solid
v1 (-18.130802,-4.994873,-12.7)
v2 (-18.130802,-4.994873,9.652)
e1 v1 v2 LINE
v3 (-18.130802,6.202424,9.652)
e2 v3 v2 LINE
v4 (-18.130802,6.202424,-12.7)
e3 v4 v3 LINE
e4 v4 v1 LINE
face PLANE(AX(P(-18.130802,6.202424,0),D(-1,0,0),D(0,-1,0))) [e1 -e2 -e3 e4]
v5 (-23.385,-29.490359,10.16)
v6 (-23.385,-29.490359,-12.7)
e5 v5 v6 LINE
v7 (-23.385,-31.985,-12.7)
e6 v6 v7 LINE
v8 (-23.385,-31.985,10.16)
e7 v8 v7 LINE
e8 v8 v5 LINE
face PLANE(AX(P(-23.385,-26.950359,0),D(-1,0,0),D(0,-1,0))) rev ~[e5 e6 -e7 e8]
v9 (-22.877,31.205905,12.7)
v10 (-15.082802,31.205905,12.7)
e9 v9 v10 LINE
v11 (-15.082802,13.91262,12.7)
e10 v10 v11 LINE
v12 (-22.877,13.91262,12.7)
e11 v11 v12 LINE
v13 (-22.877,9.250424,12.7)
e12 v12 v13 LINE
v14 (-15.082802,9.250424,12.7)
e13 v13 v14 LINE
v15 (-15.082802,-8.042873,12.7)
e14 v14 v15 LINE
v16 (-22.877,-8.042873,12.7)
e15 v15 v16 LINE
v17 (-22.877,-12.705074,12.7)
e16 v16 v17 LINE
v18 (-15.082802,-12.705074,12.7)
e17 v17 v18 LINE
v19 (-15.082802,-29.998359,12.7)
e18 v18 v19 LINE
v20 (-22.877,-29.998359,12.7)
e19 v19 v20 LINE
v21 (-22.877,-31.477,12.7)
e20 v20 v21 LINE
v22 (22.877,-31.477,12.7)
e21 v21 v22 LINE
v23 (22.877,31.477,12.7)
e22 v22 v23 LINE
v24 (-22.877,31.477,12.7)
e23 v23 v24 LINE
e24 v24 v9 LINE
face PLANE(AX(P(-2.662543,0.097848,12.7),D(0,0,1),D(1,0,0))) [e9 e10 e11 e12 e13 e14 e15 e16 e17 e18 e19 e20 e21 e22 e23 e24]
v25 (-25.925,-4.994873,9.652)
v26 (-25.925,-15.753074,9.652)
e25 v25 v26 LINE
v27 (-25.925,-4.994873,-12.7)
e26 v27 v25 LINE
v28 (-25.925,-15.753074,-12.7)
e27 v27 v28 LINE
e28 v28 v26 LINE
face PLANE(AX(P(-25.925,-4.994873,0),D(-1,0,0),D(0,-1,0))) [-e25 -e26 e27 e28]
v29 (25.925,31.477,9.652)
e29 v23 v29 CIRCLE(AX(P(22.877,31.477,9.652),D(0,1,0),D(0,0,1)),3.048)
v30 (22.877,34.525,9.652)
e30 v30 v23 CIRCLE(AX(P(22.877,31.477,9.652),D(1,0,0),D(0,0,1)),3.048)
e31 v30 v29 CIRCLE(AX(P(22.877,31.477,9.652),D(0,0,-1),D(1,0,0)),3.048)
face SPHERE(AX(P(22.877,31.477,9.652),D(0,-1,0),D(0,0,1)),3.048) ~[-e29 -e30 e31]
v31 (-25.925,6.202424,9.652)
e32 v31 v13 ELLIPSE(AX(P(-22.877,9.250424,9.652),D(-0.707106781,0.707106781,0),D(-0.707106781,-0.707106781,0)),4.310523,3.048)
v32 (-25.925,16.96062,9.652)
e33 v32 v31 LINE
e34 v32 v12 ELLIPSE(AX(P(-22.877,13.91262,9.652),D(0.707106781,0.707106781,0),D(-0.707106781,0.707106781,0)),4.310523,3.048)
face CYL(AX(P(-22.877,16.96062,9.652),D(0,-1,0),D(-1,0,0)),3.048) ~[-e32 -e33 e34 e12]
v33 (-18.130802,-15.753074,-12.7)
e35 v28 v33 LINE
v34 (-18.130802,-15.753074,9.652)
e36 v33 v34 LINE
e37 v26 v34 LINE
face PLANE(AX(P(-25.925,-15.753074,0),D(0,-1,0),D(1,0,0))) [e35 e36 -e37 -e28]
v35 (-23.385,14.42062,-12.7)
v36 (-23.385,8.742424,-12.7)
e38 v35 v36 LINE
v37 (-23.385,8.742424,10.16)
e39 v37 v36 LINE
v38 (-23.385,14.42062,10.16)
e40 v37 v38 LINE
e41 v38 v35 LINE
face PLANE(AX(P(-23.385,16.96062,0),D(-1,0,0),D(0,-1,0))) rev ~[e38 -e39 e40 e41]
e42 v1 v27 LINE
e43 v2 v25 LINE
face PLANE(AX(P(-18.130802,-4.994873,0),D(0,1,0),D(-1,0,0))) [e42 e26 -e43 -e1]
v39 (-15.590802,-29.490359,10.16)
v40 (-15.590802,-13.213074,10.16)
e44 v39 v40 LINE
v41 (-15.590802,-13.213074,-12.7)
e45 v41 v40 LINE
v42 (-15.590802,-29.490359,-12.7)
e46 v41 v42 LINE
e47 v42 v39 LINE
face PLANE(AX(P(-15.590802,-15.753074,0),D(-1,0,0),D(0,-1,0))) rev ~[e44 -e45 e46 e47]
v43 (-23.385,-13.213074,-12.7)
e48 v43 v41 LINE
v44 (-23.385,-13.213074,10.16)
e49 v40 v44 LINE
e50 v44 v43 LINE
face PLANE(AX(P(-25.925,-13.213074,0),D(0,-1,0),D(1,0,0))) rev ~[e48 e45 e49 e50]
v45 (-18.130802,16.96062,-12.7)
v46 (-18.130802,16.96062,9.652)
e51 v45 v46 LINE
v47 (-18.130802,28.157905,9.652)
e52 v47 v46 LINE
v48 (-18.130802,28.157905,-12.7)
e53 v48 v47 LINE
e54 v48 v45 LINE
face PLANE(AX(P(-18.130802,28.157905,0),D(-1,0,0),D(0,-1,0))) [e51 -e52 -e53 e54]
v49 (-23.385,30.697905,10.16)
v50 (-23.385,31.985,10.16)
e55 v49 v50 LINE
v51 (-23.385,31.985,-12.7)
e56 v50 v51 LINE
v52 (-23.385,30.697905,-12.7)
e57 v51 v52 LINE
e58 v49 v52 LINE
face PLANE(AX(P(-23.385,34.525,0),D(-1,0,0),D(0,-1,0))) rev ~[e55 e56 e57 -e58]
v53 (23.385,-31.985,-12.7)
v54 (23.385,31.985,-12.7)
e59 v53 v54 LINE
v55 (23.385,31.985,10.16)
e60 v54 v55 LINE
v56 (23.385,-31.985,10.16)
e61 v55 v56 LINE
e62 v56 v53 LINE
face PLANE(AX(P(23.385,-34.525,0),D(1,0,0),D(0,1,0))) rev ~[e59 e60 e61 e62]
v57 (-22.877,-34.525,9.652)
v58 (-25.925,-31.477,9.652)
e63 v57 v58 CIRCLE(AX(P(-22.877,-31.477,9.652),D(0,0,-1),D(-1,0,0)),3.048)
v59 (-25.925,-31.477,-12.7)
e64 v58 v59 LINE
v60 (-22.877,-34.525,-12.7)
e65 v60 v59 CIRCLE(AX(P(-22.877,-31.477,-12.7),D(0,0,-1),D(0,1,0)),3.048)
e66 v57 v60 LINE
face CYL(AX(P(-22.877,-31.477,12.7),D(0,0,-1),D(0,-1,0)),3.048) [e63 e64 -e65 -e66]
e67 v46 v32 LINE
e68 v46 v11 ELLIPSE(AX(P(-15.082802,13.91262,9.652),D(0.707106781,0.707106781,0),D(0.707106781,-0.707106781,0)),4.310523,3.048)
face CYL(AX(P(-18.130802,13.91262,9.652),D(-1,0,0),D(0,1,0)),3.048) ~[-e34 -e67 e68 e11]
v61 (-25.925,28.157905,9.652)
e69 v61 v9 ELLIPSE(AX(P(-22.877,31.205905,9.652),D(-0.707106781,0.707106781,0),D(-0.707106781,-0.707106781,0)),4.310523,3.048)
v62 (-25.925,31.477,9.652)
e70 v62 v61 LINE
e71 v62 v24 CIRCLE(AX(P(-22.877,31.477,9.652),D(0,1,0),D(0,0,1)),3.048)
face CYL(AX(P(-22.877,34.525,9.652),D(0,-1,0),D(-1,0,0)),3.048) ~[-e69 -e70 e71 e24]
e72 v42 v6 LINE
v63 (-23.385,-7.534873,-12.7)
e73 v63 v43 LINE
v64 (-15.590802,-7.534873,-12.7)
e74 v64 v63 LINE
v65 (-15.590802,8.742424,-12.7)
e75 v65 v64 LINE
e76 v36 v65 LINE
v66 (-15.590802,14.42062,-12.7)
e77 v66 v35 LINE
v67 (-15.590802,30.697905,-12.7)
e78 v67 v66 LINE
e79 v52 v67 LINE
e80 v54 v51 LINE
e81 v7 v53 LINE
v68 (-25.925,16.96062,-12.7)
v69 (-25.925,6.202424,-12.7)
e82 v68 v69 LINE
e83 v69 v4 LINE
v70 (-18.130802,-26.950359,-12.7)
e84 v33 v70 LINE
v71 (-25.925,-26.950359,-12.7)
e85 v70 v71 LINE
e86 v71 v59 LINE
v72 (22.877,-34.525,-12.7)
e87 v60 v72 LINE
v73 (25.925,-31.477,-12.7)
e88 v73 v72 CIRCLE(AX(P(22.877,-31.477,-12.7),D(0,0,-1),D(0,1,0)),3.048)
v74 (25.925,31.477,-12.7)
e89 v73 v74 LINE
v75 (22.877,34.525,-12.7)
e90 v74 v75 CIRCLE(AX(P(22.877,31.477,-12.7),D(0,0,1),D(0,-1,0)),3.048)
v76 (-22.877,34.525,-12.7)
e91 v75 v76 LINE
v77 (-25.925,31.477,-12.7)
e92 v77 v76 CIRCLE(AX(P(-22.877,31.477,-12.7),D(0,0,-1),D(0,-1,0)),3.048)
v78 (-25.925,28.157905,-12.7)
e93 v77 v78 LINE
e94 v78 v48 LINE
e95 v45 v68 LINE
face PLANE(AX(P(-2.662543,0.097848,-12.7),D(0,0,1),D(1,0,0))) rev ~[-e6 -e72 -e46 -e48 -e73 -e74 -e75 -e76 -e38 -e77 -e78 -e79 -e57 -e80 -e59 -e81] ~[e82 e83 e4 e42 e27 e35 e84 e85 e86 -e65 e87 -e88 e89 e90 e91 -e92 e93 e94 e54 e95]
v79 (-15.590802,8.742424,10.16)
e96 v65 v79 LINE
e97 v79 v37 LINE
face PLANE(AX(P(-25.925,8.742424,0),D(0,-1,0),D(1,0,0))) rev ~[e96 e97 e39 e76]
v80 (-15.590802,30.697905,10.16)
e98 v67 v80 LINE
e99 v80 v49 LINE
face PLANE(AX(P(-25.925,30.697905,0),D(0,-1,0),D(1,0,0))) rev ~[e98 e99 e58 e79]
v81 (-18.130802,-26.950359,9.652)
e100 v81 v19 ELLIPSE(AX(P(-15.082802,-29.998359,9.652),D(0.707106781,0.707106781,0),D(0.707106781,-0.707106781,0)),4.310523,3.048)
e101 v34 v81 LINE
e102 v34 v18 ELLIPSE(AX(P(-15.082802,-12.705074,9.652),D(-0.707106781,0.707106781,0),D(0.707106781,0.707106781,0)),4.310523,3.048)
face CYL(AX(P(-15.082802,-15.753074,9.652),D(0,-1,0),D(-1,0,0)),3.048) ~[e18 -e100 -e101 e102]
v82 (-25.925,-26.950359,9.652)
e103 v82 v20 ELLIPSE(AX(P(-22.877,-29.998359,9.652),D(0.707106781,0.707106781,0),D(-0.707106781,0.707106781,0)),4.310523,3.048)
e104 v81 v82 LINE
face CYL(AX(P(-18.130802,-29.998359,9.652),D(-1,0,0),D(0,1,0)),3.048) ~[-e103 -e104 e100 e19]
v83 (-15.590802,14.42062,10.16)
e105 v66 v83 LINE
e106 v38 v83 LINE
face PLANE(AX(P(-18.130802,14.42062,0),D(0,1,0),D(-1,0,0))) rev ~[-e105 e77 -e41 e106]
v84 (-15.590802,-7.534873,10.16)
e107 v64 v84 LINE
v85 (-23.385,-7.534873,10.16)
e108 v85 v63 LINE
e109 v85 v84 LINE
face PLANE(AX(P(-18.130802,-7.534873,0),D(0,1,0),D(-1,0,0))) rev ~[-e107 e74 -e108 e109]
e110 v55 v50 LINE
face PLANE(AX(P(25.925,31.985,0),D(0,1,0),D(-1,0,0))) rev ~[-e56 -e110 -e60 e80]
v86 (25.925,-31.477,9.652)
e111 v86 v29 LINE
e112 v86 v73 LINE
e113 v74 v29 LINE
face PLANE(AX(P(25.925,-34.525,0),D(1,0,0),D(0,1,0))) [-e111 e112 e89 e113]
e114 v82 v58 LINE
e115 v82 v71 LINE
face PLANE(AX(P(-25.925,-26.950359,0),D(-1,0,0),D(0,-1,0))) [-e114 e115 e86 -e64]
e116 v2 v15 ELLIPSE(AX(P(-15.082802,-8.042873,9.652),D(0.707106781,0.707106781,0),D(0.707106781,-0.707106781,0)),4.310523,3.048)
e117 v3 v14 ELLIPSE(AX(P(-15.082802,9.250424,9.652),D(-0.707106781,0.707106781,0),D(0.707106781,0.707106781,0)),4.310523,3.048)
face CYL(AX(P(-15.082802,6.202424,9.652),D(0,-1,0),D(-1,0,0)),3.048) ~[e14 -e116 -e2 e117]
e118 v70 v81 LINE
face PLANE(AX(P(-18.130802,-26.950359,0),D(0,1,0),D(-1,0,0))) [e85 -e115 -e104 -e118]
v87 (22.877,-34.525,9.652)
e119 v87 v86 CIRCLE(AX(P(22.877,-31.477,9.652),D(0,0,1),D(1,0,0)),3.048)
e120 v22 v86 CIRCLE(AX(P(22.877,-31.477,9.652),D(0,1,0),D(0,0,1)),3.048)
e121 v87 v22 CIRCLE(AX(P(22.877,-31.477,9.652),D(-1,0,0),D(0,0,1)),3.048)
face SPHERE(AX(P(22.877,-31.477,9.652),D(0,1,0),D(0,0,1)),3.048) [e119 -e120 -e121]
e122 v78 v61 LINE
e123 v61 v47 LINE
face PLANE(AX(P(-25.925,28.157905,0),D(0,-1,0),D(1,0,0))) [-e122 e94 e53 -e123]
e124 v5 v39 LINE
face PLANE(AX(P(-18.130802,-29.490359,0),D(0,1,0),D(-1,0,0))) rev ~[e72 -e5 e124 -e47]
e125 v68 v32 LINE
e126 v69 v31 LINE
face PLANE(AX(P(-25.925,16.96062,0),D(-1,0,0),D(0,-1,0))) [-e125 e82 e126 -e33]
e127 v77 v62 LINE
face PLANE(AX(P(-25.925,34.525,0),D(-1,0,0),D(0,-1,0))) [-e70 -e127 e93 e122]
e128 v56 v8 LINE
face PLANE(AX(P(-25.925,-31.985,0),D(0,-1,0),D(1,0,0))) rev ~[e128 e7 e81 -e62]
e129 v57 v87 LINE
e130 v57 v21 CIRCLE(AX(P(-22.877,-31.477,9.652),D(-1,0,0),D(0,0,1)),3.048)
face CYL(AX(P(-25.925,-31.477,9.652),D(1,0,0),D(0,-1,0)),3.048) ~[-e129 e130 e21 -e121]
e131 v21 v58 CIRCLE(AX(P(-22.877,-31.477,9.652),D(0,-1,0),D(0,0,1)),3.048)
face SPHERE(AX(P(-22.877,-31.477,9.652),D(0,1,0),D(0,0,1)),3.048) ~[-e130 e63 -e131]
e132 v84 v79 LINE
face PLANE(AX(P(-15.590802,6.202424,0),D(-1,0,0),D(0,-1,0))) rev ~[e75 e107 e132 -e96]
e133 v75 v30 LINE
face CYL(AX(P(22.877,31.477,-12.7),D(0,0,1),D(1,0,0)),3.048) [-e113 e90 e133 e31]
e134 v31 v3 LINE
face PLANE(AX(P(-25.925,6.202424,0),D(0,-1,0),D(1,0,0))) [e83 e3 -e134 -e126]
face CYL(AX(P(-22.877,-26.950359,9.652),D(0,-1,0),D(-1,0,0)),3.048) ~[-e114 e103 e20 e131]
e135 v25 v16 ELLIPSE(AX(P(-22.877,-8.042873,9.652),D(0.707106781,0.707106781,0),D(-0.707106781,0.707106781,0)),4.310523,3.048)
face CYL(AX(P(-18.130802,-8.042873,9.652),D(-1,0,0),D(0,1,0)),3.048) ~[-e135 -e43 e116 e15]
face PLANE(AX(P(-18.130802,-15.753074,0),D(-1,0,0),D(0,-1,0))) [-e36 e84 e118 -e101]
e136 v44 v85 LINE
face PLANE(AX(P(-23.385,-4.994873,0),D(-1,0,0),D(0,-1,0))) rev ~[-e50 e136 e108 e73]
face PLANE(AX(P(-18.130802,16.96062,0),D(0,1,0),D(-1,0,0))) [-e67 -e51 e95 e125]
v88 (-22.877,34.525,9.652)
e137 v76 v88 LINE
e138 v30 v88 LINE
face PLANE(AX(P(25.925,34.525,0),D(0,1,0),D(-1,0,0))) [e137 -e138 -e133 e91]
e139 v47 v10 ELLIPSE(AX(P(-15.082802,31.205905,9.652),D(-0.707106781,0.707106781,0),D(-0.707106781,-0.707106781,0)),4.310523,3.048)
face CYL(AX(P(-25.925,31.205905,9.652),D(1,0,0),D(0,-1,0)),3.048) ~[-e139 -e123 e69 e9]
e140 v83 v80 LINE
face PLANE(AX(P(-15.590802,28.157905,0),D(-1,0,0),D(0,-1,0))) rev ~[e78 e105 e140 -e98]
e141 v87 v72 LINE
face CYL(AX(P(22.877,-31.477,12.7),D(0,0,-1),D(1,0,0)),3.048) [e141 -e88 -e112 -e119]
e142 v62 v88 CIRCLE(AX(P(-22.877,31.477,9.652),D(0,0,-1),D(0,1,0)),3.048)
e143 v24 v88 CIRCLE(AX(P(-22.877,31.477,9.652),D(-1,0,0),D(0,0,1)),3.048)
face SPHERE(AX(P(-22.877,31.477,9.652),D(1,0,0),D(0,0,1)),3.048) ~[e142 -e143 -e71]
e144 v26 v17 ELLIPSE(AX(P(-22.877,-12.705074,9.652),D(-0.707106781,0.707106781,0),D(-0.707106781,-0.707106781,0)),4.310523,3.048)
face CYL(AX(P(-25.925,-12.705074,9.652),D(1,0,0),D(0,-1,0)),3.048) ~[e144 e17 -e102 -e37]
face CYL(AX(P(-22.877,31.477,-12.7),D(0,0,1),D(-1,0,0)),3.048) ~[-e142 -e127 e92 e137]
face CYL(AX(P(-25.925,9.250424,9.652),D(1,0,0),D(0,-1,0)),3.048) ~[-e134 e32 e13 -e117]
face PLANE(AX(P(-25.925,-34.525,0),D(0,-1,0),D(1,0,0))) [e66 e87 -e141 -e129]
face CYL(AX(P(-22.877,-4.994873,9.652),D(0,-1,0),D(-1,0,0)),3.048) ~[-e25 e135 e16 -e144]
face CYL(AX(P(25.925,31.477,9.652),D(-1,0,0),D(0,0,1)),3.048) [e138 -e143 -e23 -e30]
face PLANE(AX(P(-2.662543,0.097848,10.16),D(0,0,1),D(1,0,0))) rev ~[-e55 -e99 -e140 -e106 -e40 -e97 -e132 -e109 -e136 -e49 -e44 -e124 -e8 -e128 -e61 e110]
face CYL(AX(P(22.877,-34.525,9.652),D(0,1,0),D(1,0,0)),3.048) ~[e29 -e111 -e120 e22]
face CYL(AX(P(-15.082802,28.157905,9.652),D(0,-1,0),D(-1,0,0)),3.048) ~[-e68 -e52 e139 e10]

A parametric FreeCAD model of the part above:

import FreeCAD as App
import Part
import Sketcher
Q = App.Units.Quantity


def edges_at(feature, points):
    """Names of the edges that pass closest to the given points."""
    edges = feature.Shape.Edges
    near = lambda p: min(range(len(edges)), key=lambda i: edges[i].distToShape(Part.Vertex(*p))[0])
    return sorted({f"Edge{near(p) + 1}" for p in points})


def faces_at(feature, points):
    """Names of the faces that lie closest to the given points."""
    faces = feature.Shape.Faces
    near = lambda p: min(range(len(faces)), key=lambda i: faces[i].distToShape(Part.Vertex(*p))[0])
    return sorted({f"Face{near(p) + 1}" for p in points})


def add_polygon(sketch, points):
    """Adds a closed chain of lines whose ends are joined by coincident constraints."""
    first, n = sketch.GeometryCount, len(points)
    for a, b in zip(points, points[1:] + points[:1]):
        sketch.addGeometry(Part.LineSegment(App.Vector(*a, 0), App.Vector(*b, 0)), False)
    for i in range(n):
        sketch.addConstraint(Sketcher.Constraint("Coincident", first + i, 2, first + (i + 1) % n, 1))

doc = App.newDocument("Part")
body = doc.addObject("PartDesign::Body", "Body")

sketch1 = doc.addObject("Sketcher::SketchObject", "Sketch")
body.addObject(sketch1)
sketch1.AttachmentSupport = (doc.XY_Plane, [""])
sketch1.MapMode = "FlatFace"
add_polygon(sketch1, [(26, -35), (26, 35), (-26, 35), (-26, 28), (-18, 28), (-18, 17), (-26, 17), (-26, 6), (-18, 6), (-18, -5), (-26, -5), (-26, -16), (-18, -16), (-18, -27), (-26, -27), (-26, -35)])
sketch1.addConstraint([
    Sketcher.Constraint("Vertical", 0),
    Sketcher.Constraint("Horizontal", 1),
    Sketcher.Constraint("Vertical", 2),
    Sketcher.Constraint("Horizontal", 3),
    Sketcher.Constraint("Vertical", 4),
    Sketcher.Constraint("Horizontal", 5),
    Sketcher.Constraint("Vertical", 6),
    Sketcher.Constraint("Horizontal", 7),
    Sketcher.Constraint("Vertical", 8),
    Sketcher.Constraint("Horizontal", 9),
    Sketcher.Constraint("Vertical", 10),
    Sketcher.Constraint("Horizontal", 11),
    Sketcher.Constraint("Vertical", 12),
    Sketcher.Constraint("Horizontal", 13),
    Sketcher.Constraint("Vertical", 14),
    Sketcher.Constraint("Horizontal", 15),
    Sketcher.Constraint("Symmetric", 0, 2, 14, 2, -1, 1),
    Sketcher.Constraint("Vertical", 2, 2, 5, 2),
    Sketcher.Constraint("Vertical", 4, 2, 7, 2),
    Sketcher.Constraint("Vertical", 6, 2, 9, 2),
    Sketcher.Constraint("Vertical", 8, 2, 11, 2),
    Sketcher.Constraint("Vertical", 10, 2, 13, 2),
    Sketcher.Constraint("Equal", 4, 12),
    Sketcher.Constraint("DistanceX", 1, 2, 1, 1, 51.85),
    Sketcher.Constraint("DistanceX", 3, 1, 3, 2, 7.794198),
    Sketcher.Constraint("DistanceY", 0, 1, 0, 2, 69.049999),
    Sketcher.Constraint("DistanceY", 10, 2, 10, 1, 10.758201),
    Sketcher.Constraint("DistanceY", 14, 2, 14, 1, 7.574641),
    Sketcher.Constraint("DistanceY", 2, 2, 2, 1, 6.367095),
    Sketcher.Constraint("DistanceY", 4, 2, 4, 1, 11.197285),
    Sketcher.Constraint("DistanceY", 6, 2, 6, 1, 10.758195),
])
pad1 = doc.addObject("PartDesign::Pad", "Pad")
body.addObject(pad1)
pad1.Profile = sketch1
pad1.Length = Q("1 in")
pad1.Midplane = True
doc.recompute()

thickness = doc.addObject("PartDesign::Thickness", "Thickness")
body.addObject(thickness)
thickness.Base = (pad1, faces_at(pad1, [(0, 0, -12.7)]))
thickness.Value = Q("0.1 in")
thickness.Reversed = True
thickness.Join = "Intersection"
doc.recompute()

fillet = doc.addObject("PartDesign::Fillet", "Fillet")
body.addObject(fillet)
fillet.Base = (thickness, edges_at(thickness, [
    (25.925, 0, 12.7),
    (0, 34.525, 12.7),
    (-25.925, 31.341, 12.7),
    (-18.131, 22.559, 12.7),
    (-22.028, 16.961, 12.7),
    (-25.925, 11.582, 12.7),
    (-22.028, 6.202, 12.7),
    (-18.131, 0.604, 12.7),
    (-22.028, -4.995, 12.7),
    (-25.925, -10.374, 12.7),
    (-22.028, -15.753, 12.7),
    (-18.131, -21.352, 12.7),
    (-22.028, -26.95, 12.7),
    (-25.925, -30.738, 12.7),
    (0, -34.525, 12.7),
    (-22.028, 28.158, 12.7),
    (-25.925, -34.525, 0),
    (25.925, -34.525, 0),
    (25.925, 34.525, 0),
    (-25.925, 34.525, 0),
]))
fillet.Radius = Q("0.12 in")

doc.recompute()
